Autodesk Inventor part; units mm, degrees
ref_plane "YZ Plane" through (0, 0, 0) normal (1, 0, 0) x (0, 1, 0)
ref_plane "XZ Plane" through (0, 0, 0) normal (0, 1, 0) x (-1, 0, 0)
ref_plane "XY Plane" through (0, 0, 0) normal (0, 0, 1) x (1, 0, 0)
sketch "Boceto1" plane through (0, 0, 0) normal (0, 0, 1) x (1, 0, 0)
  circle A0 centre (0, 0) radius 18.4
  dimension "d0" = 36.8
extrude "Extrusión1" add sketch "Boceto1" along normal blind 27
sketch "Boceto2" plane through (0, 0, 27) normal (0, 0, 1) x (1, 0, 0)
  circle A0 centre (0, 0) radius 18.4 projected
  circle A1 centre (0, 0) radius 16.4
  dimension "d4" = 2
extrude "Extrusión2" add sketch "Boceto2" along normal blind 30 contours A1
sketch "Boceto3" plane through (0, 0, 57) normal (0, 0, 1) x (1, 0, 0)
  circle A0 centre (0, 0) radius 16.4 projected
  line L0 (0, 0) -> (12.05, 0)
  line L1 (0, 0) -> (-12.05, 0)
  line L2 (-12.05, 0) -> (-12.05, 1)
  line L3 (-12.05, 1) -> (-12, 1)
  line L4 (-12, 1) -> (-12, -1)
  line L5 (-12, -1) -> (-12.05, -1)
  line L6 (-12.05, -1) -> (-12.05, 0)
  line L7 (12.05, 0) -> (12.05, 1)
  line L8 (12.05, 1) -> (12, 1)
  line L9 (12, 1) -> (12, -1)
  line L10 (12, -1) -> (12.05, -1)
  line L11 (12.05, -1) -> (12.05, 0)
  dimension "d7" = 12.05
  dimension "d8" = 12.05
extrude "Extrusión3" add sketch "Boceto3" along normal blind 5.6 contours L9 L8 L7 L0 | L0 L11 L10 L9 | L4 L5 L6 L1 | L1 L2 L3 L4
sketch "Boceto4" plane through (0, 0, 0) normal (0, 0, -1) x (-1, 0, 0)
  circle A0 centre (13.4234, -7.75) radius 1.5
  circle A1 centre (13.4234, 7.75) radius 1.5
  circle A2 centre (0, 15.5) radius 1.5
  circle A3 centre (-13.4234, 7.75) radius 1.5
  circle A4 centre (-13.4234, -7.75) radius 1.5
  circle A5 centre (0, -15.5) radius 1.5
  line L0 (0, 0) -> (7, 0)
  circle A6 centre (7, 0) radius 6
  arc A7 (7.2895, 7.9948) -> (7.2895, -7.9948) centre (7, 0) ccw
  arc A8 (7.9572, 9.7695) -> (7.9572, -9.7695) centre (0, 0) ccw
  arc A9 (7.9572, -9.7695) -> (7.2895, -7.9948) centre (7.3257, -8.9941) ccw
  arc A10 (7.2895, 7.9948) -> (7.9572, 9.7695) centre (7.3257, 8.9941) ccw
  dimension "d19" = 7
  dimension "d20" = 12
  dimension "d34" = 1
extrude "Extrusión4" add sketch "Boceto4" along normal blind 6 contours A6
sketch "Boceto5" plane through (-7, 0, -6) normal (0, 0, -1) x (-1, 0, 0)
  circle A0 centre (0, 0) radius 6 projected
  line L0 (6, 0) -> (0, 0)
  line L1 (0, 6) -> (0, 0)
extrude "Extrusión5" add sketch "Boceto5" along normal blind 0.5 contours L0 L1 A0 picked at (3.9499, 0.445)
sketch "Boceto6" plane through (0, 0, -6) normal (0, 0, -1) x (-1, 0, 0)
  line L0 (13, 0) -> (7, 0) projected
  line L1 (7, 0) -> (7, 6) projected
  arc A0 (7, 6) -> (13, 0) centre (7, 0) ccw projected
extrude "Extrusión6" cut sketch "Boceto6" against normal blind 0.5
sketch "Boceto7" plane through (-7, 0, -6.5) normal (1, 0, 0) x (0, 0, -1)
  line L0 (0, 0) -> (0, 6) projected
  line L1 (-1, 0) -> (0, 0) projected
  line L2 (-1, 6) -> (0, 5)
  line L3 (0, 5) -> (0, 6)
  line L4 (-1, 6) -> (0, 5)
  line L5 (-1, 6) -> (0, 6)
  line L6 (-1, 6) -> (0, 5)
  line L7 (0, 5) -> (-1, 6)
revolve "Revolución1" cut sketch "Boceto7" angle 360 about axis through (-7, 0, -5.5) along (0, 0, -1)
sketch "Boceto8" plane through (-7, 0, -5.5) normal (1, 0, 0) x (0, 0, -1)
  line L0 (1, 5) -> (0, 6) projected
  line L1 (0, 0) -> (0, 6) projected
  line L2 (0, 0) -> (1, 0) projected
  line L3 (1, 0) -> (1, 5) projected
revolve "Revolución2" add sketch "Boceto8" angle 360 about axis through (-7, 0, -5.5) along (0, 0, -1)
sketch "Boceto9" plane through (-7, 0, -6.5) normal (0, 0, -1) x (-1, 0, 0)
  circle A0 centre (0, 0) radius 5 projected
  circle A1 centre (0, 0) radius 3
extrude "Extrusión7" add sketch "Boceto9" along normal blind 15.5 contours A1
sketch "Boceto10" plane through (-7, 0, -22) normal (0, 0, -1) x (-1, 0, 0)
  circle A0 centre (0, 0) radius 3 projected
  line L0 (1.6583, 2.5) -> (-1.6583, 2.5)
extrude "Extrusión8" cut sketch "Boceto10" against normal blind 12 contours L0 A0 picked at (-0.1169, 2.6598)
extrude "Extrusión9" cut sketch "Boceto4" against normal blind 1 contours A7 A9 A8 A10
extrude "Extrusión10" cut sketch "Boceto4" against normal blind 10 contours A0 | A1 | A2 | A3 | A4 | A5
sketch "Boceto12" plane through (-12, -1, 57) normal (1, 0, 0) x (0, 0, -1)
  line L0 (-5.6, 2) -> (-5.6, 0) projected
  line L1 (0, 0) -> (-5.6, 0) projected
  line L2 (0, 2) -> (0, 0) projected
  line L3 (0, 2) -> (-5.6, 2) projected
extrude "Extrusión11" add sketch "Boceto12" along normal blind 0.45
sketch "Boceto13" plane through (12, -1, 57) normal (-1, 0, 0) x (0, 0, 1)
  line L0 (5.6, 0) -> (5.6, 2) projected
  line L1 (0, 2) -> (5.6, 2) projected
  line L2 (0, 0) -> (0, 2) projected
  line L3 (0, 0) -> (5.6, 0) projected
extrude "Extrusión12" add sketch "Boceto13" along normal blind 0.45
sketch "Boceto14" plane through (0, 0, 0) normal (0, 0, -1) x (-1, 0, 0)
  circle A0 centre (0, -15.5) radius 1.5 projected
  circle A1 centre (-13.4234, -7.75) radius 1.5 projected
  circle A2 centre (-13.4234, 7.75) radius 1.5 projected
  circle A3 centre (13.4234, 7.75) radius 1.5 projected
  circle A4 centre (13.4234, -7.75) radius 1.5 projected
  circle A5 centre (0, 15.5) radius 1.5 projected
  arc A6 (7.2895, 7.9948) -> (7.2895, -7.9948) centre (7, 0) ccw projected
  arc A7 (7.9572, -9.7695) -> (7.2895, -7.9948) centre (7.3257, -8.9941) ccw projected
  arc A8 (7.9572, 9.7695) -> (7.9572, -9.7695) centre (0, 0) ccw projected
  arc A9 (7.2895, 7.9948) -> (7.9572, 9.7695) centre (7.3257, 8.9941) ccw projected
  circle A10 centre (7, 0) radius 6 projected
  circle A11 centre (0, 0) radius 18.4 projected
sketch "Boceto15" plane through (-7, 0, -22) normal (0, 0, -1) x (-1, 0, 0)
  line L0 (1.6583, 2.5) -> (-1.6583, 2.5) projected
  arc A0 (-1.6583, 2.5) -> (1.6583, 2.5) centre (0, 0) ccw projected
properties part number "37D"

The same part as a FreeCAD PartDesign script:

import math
import FreeCAD as App
import Part
import Sketcher

doc = App.newDocument("Part")
body = doc.addObject("PartDesign::Body", "Body")

# Sketch on XY plane
sketch1 = body.newObject("Sketcher::SketchObject", "Sketch")
sketch1.AttachmentSupport = (doc.getObject("XY_Plane"), [""])
sketch1.MapMode = "FlatFace"
sketch1.addGeometry(Part.Circle(App.Vector(0, 0, 0), App.Vector(0, 0, 1), 18), False)
sketch1.addConstraint([
    Sketcher.Constraint("Coincident", 0, 3, -1, 1),
    Sketcher.Constraint("Diameter", 0, 36.8),
])
pad1 = body.newObject("PartDesign::Pad", "Pad")
pad1.Profile = sketch1
pad1.Length = 27

# Sketch on XY plane
sketch2 = body.newObject("Sketcher::SketchObject", "Sketch001")
sketch2.AttachmentSupport = (doc.getObject("XY_Plane"), [""])
sketch2.MapMode = "FlatFace"
sketch2.AttachmentOffset = App.Placement(App.Vector(0, 0, 27), App.Rotation())
sketch2.addGeometry(Part.Circle(App.Vector(0, 0, 0), App.Vector(0, 0, 1), 16), False)
sketch2.addConstraint([
    Sketcher.Constraint("Coincident", 0, 3, -1, 1),
    Sketcher.Constraint("Diameter", 0, 32.8),
])
pad2 = body.newObject("PartDesign::Pad", "Pad001")
pad2.Profile = sketch2
pad2.Length = 30

# Sketch on XY plane
sketch3 = body.newObject("Sketcher::SketchObject", "Sketch002")
sketch3.AttachmentSupport = (doc.getObject("XY_Plane"), [""])
sketch3.MapMode = "FlatFace"
sketch3.AttachmentOffset = App.Placement(App.Vector(0, 0, 57), App.Rotation())
sketch3.addGeometry([
    Part.LineSegment(App.Vector(12, 1, 0), App.Vector(12, -1, 0)),  # 0
    Part.LineSegment(App.Vector(12, -1, 0), App.Vector(12.05, -1, 0)),  # 1
    Part.LineSegment(App.Vector(12.05, -1, 0), App.Vector(12.05, 1, 0)),  # 2
    Part.LineSegment(App.Vector(12.05, 1, 0), App.Vector(12, 1, 0)),  # 3
    Part.LineSegment(App.Vector(-12, -1, 0), App.Vector(-12, 1, 0)),  # 4
    Part.LineSegment(App.Vector(-12, 1, 0), App.Vector(-12.05, 1, 0)),  # 5
    Part.LineSegment(App.Vector(-12.05, 1, 0), App.Vector(-12.05, -1, 0)),  # 6
    Part.LineSegment(App.Vector(-12.05, -1, 0), App.Vector(-12, -1, 0)),  # 7
], False)
sketch3.addConstraint([
    Sketcher.Constraint("Coincident", 0, 2, 1, 1),
    Sketcher.Constraint("Coincident", 1, 2, 2, 1),
    Sketcher.Constraint("Coincident", 2, 2, 3, 1),
    Sketcher.Constraint("Coincident", 3, 2, 0, 1),
    Sketcher.Constraint("Coincident", 4, 2, 5, 1),
    Sketcher.Constraint("Coincident", 5, 2, 6, 1),
    Sketcher.Constraint("Coincident", 6, 2, 7, 1),
    Sketcher.Constraint("Coincident", 7, 2, 4, 1),
    Sketcher.Constraint("Vertical", 0),
    Sketcher.Constraint("Horizontal", 1),
    Sketcher.Constraint("Vertical", 2),
    Sketcher.Constraint("Horizontal", 3),
    Sketcher.Constraint("Vertical", 4),
    Sketcher.Constraint("Horizontal", 5),
    Sketcher.Constraint("Vertical", 6),
    Sketcher.Constraint("Horizontal", 7),
    Sketcher.Constraint("Symmetric", 0, 2, 4, 2, -1, 1),
    Sketcher.Constraint("Symmetric", 2, 2, 6, 2, -1, 1),
    Sketcher.Constraint("Horizontal", 3, 2, 4, 2),
    Sketcher.Constraint("DistanceY", 0, 2, 0, 1, 2.0),
    Sketcher.Constraint("DistanceX", -1, 1, 1, 2, 12.05),
    Sketcher.Constraint("DistanceX", -1, 1, 0, 2, 12.0),
])
pad3 = body.newObject("PartDesign::Pad", "Pad002")
pad3.Profile = sketch3
pad3.Length = 5.6

# Sketch on XY plane
sketch4 = body.newObject("Sketcher::SketchObject", "Sketch003")
sketch4.AttachmentSupport = (doc.getObject("XY_Plane"), [""])
sketch4.MapMode = "FlatFace"
sketch4.addGeometry(Part.Circle(App.Vector(-7, 0, 0), App.Vector(0, 0, 1), 6), False)
sketch4.addConstraint([
    Sketcher.Constraint("PointOnObject", 0, 3, -1),
    Sketcher.Constraint("Diameter", 0, 12.0),
    Sketcher.Constraint("DistanceX", 0, 3, -1, 1, 7.0),
])
pad4 = body.newObject("PartDesign::Pad", "Pad003")
pad4.Profile = sketch4
pad4.Length = 6
pad4.Reversed = True

# Sketch on XY plane
sketch5 = body.newObject("Sketcher::SketchObject", "Sketch004")
sketch5.AttachmentSupport = (doc.getObject("XY_Plane"), [""])
sketch5.MapMode = "FlatFace"
sketch5.AttachmentOffset = App.Placement(App.Vector(0, 0, -6), App.Rotation())
sketch5.addGeometry([
    Part.LineSegment(App.Vector(-7, 0, 0), App.Vector(-13, 0, 0)),
    Part.ArcOfCircle(Part.Circle(App.Vector(-7, 0, 0), App.Vector(0, 0, 1), 6), math.radians(90), math.radians(180)),
    Part.LineSegment(App.Vector(-7, 6, 0), App.Vector(-7, 0, 0)),
], False)
sketch5.addConstraint([
    Sketcher.Constraint("Coincident", 0, 2, 1, 2),
    Sketcher.Constraint("Coincident", 1, 1, 2, 1),
    Sketcher.Constraint("Coincident", 2, 2, 0, 1),
    Sketcher.Constraint("Horizontal", 0),
    Sketcher.Constraint("Vertical", 2),
    Sketcher.Constraint("Coincident", 2, 2, 1, 3),
    Sketcher.Constraint("PointOnObject", 1, 3, -1),
    Sketcher.Constraint("Radius", 1, 6.0),
    Sketcher.Constraint("DistanceX", 1, 3, -1, 1, 7.0),
])
pad5 = body.newObject("PartDesign::Pad", "Pad004")
pad5.Profile = sketch5
pad5.Length = 0.5
pad5.Reversed = True

# Sketch on XY plane
sketch6 = body.newObject("Sketcher::SketchObject", "Sketch005")
sketch6.AttachmentSupport = (doc.getObject("XY_Plane"), [""])
sketch6.MapMode = "FlatFace"
sketch6.AttachmentOffset = App.Placement(App.Vector(0, 0, -6), App.Rotation())
sketch6.addGeometry([
    Part.ArcOfCircle(Part.Circle(App.Vector(-7, 0, 0), App.Vector(0, 0, 1), 6), math.radians(180), math.radians(450)),
    Part.LineSegment(App.Vector(-13, 0, 0), App.Vector(-7, 0, 0)),
    Part.LineSegment(App.Vector(-7, 0, 0), App.Vector(-7, 6, 0)),
], False)
sketch6.addConstraint([
    Sketcher.Constraint("Coincident", 0, 1, 1, 1),
    Sketcher.Constraint("Coincident", 1, 2, 2, 1),
    Sketcher.Constraint("Coincident", 2, 2, 0, 2),
    Sketcher.Constraint("Horizontal", 1),
    Sketcher.Constraint("Vertical", 2),
    Sketcher.Constraint("Coincident", 1, 2, 0, 3),
    Sketcher.Constraint("PointOnObject", 0, 3, -1),
    Sketcher.Constraint("Radius", 0, 6.0),
    Sketcher.Constraint("DistanceX", 0, 3, -1, 1, 7.0),
])
pocket1 = body.newObject("PartDesign::Pocket", "Pocket")
pocket1.Profile = sketch6
pocket1.Length = 0.5
pocket1.Reversed = True

# Sketch on YZ plane
sketch7 = body.newObject("Sketcher::SketchObject", "Sketch006")
sketch7.AttachmentSupport = (doc.getObject("YZ_Plane"), [""])
sketch7.MapMode = "FlatFace"
sketch7.AttachmentOffset = App.Placement(App.Vector(0, 0, -7), App.Rotation())
sketch7.addGeometry([
    Part.LineSegment(App.Vector(6, -5.5, 0), App.Vector(5, -6.5, 0)),
    Part.LineSegment(App.Vector(5, -6.5, 0), App.Vector(6, -6.5, 0)),
    Part.LineSegment(App.Vector(6, -6.5, 0), App.Vector(6, -5.5, 0)),
], False)
sketch7.addConstraint([
    Sketcher.Constraint("Coincident", 0, 2, 1, 1),
    Sketcher.Constraint("Coincident", 1, 2, 2, 1),
    Sketcher.Constraint("Coincident", 2, 2, 0, 1),
    Sketcher.Constraint("Horizontal", 1),
    Sketcher.Constraint("Vertical", 2),
    Sketcher.Constraint("Equal", 1, 2),
    Sketcher.Constraint("DistanceX", 1, 1, 1, 2, 1.0),
    Sketcher.Constraint("DistanceX", -1, 1, 0, 2, 5.0),
    Sketcher.Constraint("DistanceY", 0, 2, -1, 1, 6.5),
])
groove = body.newObject("PartDesign::Groove", "Groove")
groove.Profile = sketch7
groove.ReferenceAxis = (sketch7, ["V_Axis"])
groove.Angle = 360

# Sketch on YZ plane
sketch8 = body.newObject("Sketcher::SketchObject", "Sketch007")
sketch8.AttachmentSupport = (doc.getObject("YZ_Plane"), [""])
sketch8.MapMode = "FlatFace"
sketch8.AttachmentOffset = App.Placement(App.Vector(0, 0, -7), App.Rotation())
sketch8.addGeometry([
    Part.LineSegment(App.Vector(0, -6.5, 0), App.Vector(5, -6.5, 0)),
    Part.LineSegment(App.Vector(5, -6.5, 0), App.Vector(6, -5.5, 0)),
    Part.LineSegment(App.Vector(6, -5.5, 0), App.Vector(0, -5.5, 0)),
    Part.LineSegment(App.Vector(0, -5.5, 0), App.Vector(0, -6.5, 0)),
], False)
sketch8.addConstraint([
    Sketcher.Constraint("Coincident", 0, 2, 1, 1),
    Sketcher.Constraint("Coincident", 1, 2, 2, 1),
    Sketcher.Constraint("Coincident", 2, 2, 3, 1),
    Sketcher.Constraint("Coincident", 3, 2, 0, 1),
    Sketcher.Constraint("Horizontal", 0),
    Sketcher.Constraint("Horizontal", 2),
    Sketcher.Constraint("Vertical", 3),
    Sketcher.Constraint("PointOnObject", 2, 2, -2),
    Sketcher.Constraint("DistanceX", 0, 1, 0, 2, 5.0),
    Sketcher.Constraint("DistanceX", 2, 2, 2, 1, 6.0),
    Sketcher.Constraint("DistanceY", 3, 2, 3, 1, 1.0),
    Sketcher.Constraint("DistanceY", 0, 2, -1, 1, 6.5),
])
revolution = body.newObject("PartDesign::Revolution", "Revolution")
revolution.Profile = sketch8
revolution.ReferenceAxis = (sketch8, ["V_Axis"])
revolution.Angle = 360

# Sketch on XY plane
sketch9 = body.newObject("Sketcher::SketchObject", "Sketch008")
sketch9.AttachmentSupport = (doc.getObject("XY_Plane"), [""])
sketch9.MapMode = "FlatFace"
sketch9.AttachmentOffset = App.Placement(App.Vector(0, 0, -6.5), App.Rotation())
sketch9.addGeometry(Part.Circle(App.Vector(-7, 0, 0), App.Vector(0, 0, 1), 3), False)
sketch9.addConstraint([
    Sketcher.Constraint("PointOnObject", 0, 3, -1),
    Sketcher.Constraint("Diameter", 0, 6.0),
    Sketcher.Constraint("DistanceX", 0, 3, -1, 1, 7.0),
])
pad6 = body.newObject("PartDesign::Pad", "Pad005")
pad6.Profile = sketch9
pad6.Length = 15.5
pad6.Reversed = True

# Sketch on XY plane
sketch10 = body.newObject("Sketcher::SketchObject", "Sketch009")
sketch10.AttachmentSupport = (doc.getObject("XY_Plane"), [""])
sketch10.MapMode = "FlatFace"
sketch10.AttachmentOffset = App.Placement(App.Vector(0, 0, -22), App.Rotation())
sketch10.addGeometry([
    Part.LineSegment(App.Vector(-5.3, 2.5, 0), App.Vector(-8.7, 2.5, 0)),
    Part.ArcOfCircle(Part.Circle(App.Vector(-7, 0, 0), App.Vector(0, 0, 1), 3), math.radians(56), math.radians(124)),
], False)
sketch10.addConstraint([
    Sketcher.Constraint("Coincident", 0, 1, 1, 1),
    Sketcher.Constraint("Coincident", 1, 2, 0, 2),
    Sketcher.Constraint("Horizontal", 0),
    Sketcher.Constraint("PointOnObject", 1, 3, -1),
    Sketcher.Constraint("Radius", 1, 3.0),
    Sketcher.Constraint("DistanceX", 1, 3, -1, 1, 7.0),
    Sketcher.Constraint("DistanceY", -1, 1, 0, 1, 2.5),
])
pocket2 = body.newObject("PartDesign::Pocket", "Pocket001")
pocket2.Profile = sketch10
pocket2.Length = 12
pocket2.Reversed = True

# Sketch on XY plane
sketch11 = body.newObject("Sketcher::SketchObject", "Sketch010")
sketch11.AttachmentSupport = (doc.getObject("XY_Plane"), [""])
sketch11.MapMode = "FlatFace"
sketch11.addGeometry([
    Part.ArcOfCircle(Part.Circle(App.Vector(-7, 0, 0), App.Vector(0, 0, 1), 8), math.radians(-92), math.radians(92)),
    Part.ArcOfCircle(Part.Circle(App.Vector(-7.3, 9, 0), App.Vector(0, 0, 1), 1), math.radians(129), math.radians(272)),
    Part.ArcOfCircle(Part.Circle(App.Vector(0, 0, 0), App.Vector(0, 0, 1), 12.6), math.radians(-129), math.radians(129)),
    Part.ArcOfCircle(Part.Circle(App.Vector(-7.3, -9, 0), App.Vector(0, 0, 1), 1), math.radians(88), math.radians(231)),
], False)
sketch11.addConstraint([
    Sketcher.Constraint("Tangent", 0, 2, 1, 2),
    Sketcher.Constraint("Tangent", 1, 1, 2, 2),
    Sketcher.Constraint("Tangent", 2, 1, 3, 2),
    Sketcher.Constraint("Tangent", 3, 1, 0, 1),
    Sketcher.Constraint("Coincident", 2, 3, -1, 1),
    Sketcher.Constraint("Equal", 1, 3),
    Sketcher.Constraint("PointOnObject", 0, 3, -1),
    Sketcher.Constraint("Radius", 1, 1.0),
    Sketcher.Constraint("DistanceX", 0, 3, -1, 1, 7.0),
    Sketcher.Constraint("Radius", 0, 8.0),
    Sketcher.Constraint("Radius", 2, 12.6),
])
pocket3 = body.newObject("PartDesign::Pocket", "Pocket002")
pocket3.Profile = sketch11
pocket3.Length = 1
pocket3.Reversed = True

# Sketch on XY plane
sketch12 = body.newObject("Sketcher::SketchObject", "Sketch011")
sketch12.AttachmentSupport = (doc.getObject("XY_Plane"), [""])
sketch12.MapMode = "FlatFace"
sketch12.addGeometry([
    Part.Circle(App.Vector(-13.4, -7.8, 0), App.Vector(0, 0, 1), 1.5),  # 0
    Part.Circle(App.Vector(-13.4, 7.8, 0), App.Vector(0, 0, 1), 1.5),  # 1
    Part.Circle(App.Vector(0, 15.5, 0), App.Vector(0, 0, 1), 1.5),  # 2
    Part.Circle(App.Vector(13.4, 7.8, 0), App.Vector(0, 0, 1), 1.5),  # 3
    Part.Circle(App.Vector(13.4, -7.8, 0), App.Vector(0, 0, 1), 1.5),  # 4
    Part.Circle(App.Vector(0, -15.5, 0), App.Vector(0, 0, 1), 1.5),  # 5
], False)
sketch12.addConstraint([
    Sketcher.Constraint("Equal", 0, 1),
    Sketcher.Constraint("Equal", 1, 2),
    Sketcher.Constraint("Equal", 2, 3),
    Sketcher.Constraint("Equal", 3, 4),
    Sketcher.Constraint("Equal", 4, 5),
    Sketcher.Constraint("Symmetric", 0, 3, 3, 3, -1, 1),
    Sketcher.Constraint("Symmetric", 1, 3, 4, 3, -1, 1),
    Sketcher.Constraint("Symmetric", 2, 3, 5, 3, -1, 1),
    Sketcher.Constraint("Symmetric", 1, 3, 3, 3, -2),
    Sketcher.Constraint("PointOnObject", 2, 3, -2),
    Sketcher.Constraint("Diameter", 0, 3.0),
    Sketcher.Constraint("DistanceY", 5, 3, 2, 3, 31.0),
    Sketcher.Constraint("DistanceY", 0, 3, 1, 3, 15.5),
    Sketcher.Constraint("DistanceX", 0, 3, -1, 1, 13.4234),
])
pocket4 = body.newObject("PartDesign::Pocket", "Pocket003")
pocket4.Profile = sketch12
pocket4.Length = 10
pocket4.Reversed = True

# Sketch on YZ plane
sketch13 = body.newObject("Sketcher::SketchObject", "Sketch012")
sketch13.AttachmentSupport = (doc.getObject("YZ_Plane"), [""])
sketch13.MapMode = "FlatFace"
sketch13.AttachmentOffset = App.Placement(App.Vector(0, 0, -12), App.Rotation())
sketch13.addGeometry([
    Part.LineSegment(App.Vector(1, 57, 0), App.Vector(1, 62.6, 0)),
    Part.LineSegment(App.Vector(1, 62.6, 0), App.Vector(-1, 62.6, 0)),
    Part.LineSegment(App.Vector(-1, 62.6, 0), App.Vector(-1, 57, 0)),
    Part.LineSegment(App.Vector(-1, 57, 0), App.Vector(1, 57, 0)),
], False)
sketch13.addConstraint([
    Sketcher.Constraint("Coincident", 0, 2, 1, 1),
    Sketcher.Constraint("Coincident", 1, 2, 2, 1),
    Sketcher.Constraint("Coincident", 2, 2, 3, 1),
    Sketcher.Constraint("Coincident", 3, 2, 0, 1),
    Sketcher.Constraint("Vertical", 0),
    Sketcher.Constraint("Horizontal", 1),
    Sketcher.Constraint("Vertical", 2),
    Sketcher.Constraint("Horizontal", 3),
    Sketcher.Constraint("DistanceX", 1, 2, 1, 1, 2.0),
    Sketcher.Constraint("DistanceY", 0, 1, 0, 2, 5.6),
    Sketcher.Constraint("DistanceX", -1, 1, 0, 2, 1.0),
    Sketcher.Constraint("DistanceY", -1, 1, 2, 2, 57.0),
])
pad7 = body.newObject("PartDesign::Pad", "Pad006")
pad7.Profile = sketch13
pad7.Length = 0.45

# Sketch on YZ plane
sketch14 = body.newObject("Sketcher::SketchObject", "Sketch013")
sketch14.AttachmentSupport = (doc.getObject("YZ_Plane"), [""])
sketch14.MapMode = "FlatFace"
sketch14.AttachmentOffset = App.Placement(App.Vector(0, 0, 12), App.Rotation())
sketch14.addGeometry([
    Part.LineSegment(App.Vector(-1, 57, 0), App.Vector(-1, 62.6, 0)),
    Part.LineSegment(App.Vector(-1, 62.6, 0), App.Vector(1, 62.6, 0)),
    Part.LineSegment(App.Vector(1, 62.6, 0), App.Vector(1, 57, 0)),
    Part.LineSegment(App.Vector(1, 57, 0), App.Vector(-1, 57, 0)),
], False)
sketch14.addConstraint([
    Sketcher.Constraint("Coincident", 0, 2, 1, 1),
    Sketcher.Constraint("Coincident", 1, 2, 2, 1),
    Sketcher.Constraint("Coincident", 2, 2, 3, 1),
    Sketcher.Constraint("Coincident", 3, 2, 0, 1),
    Sketcher.Constraint("Vertical", 0),
    Sketcher.Constraint("Horizontal", 1),
    Sketcher.Constraint("Vertical", 2),
    Sketcher.Constraint("Horizontal", 3),
    Sketcher.Constraint("DistanceX", 1, 1, 1, 2, 2.0),
    Sketcher.Constraint("DistanceY", 0, 1, 0, 2, 5.6),
    Sketcher.Constraint("DistanceX", 0, 2, -1, 1, 1.0),
    Sketcher.Constraint("DistanceY", -1, 1, 2, 2, 57.0),
])
pad8 = body.newObject("PartDesign::Pad", "Pad007")
pad8.Profile = sketch14
pad8.Length = 0.45
pad8.Reversed = True

doc.recompute()
